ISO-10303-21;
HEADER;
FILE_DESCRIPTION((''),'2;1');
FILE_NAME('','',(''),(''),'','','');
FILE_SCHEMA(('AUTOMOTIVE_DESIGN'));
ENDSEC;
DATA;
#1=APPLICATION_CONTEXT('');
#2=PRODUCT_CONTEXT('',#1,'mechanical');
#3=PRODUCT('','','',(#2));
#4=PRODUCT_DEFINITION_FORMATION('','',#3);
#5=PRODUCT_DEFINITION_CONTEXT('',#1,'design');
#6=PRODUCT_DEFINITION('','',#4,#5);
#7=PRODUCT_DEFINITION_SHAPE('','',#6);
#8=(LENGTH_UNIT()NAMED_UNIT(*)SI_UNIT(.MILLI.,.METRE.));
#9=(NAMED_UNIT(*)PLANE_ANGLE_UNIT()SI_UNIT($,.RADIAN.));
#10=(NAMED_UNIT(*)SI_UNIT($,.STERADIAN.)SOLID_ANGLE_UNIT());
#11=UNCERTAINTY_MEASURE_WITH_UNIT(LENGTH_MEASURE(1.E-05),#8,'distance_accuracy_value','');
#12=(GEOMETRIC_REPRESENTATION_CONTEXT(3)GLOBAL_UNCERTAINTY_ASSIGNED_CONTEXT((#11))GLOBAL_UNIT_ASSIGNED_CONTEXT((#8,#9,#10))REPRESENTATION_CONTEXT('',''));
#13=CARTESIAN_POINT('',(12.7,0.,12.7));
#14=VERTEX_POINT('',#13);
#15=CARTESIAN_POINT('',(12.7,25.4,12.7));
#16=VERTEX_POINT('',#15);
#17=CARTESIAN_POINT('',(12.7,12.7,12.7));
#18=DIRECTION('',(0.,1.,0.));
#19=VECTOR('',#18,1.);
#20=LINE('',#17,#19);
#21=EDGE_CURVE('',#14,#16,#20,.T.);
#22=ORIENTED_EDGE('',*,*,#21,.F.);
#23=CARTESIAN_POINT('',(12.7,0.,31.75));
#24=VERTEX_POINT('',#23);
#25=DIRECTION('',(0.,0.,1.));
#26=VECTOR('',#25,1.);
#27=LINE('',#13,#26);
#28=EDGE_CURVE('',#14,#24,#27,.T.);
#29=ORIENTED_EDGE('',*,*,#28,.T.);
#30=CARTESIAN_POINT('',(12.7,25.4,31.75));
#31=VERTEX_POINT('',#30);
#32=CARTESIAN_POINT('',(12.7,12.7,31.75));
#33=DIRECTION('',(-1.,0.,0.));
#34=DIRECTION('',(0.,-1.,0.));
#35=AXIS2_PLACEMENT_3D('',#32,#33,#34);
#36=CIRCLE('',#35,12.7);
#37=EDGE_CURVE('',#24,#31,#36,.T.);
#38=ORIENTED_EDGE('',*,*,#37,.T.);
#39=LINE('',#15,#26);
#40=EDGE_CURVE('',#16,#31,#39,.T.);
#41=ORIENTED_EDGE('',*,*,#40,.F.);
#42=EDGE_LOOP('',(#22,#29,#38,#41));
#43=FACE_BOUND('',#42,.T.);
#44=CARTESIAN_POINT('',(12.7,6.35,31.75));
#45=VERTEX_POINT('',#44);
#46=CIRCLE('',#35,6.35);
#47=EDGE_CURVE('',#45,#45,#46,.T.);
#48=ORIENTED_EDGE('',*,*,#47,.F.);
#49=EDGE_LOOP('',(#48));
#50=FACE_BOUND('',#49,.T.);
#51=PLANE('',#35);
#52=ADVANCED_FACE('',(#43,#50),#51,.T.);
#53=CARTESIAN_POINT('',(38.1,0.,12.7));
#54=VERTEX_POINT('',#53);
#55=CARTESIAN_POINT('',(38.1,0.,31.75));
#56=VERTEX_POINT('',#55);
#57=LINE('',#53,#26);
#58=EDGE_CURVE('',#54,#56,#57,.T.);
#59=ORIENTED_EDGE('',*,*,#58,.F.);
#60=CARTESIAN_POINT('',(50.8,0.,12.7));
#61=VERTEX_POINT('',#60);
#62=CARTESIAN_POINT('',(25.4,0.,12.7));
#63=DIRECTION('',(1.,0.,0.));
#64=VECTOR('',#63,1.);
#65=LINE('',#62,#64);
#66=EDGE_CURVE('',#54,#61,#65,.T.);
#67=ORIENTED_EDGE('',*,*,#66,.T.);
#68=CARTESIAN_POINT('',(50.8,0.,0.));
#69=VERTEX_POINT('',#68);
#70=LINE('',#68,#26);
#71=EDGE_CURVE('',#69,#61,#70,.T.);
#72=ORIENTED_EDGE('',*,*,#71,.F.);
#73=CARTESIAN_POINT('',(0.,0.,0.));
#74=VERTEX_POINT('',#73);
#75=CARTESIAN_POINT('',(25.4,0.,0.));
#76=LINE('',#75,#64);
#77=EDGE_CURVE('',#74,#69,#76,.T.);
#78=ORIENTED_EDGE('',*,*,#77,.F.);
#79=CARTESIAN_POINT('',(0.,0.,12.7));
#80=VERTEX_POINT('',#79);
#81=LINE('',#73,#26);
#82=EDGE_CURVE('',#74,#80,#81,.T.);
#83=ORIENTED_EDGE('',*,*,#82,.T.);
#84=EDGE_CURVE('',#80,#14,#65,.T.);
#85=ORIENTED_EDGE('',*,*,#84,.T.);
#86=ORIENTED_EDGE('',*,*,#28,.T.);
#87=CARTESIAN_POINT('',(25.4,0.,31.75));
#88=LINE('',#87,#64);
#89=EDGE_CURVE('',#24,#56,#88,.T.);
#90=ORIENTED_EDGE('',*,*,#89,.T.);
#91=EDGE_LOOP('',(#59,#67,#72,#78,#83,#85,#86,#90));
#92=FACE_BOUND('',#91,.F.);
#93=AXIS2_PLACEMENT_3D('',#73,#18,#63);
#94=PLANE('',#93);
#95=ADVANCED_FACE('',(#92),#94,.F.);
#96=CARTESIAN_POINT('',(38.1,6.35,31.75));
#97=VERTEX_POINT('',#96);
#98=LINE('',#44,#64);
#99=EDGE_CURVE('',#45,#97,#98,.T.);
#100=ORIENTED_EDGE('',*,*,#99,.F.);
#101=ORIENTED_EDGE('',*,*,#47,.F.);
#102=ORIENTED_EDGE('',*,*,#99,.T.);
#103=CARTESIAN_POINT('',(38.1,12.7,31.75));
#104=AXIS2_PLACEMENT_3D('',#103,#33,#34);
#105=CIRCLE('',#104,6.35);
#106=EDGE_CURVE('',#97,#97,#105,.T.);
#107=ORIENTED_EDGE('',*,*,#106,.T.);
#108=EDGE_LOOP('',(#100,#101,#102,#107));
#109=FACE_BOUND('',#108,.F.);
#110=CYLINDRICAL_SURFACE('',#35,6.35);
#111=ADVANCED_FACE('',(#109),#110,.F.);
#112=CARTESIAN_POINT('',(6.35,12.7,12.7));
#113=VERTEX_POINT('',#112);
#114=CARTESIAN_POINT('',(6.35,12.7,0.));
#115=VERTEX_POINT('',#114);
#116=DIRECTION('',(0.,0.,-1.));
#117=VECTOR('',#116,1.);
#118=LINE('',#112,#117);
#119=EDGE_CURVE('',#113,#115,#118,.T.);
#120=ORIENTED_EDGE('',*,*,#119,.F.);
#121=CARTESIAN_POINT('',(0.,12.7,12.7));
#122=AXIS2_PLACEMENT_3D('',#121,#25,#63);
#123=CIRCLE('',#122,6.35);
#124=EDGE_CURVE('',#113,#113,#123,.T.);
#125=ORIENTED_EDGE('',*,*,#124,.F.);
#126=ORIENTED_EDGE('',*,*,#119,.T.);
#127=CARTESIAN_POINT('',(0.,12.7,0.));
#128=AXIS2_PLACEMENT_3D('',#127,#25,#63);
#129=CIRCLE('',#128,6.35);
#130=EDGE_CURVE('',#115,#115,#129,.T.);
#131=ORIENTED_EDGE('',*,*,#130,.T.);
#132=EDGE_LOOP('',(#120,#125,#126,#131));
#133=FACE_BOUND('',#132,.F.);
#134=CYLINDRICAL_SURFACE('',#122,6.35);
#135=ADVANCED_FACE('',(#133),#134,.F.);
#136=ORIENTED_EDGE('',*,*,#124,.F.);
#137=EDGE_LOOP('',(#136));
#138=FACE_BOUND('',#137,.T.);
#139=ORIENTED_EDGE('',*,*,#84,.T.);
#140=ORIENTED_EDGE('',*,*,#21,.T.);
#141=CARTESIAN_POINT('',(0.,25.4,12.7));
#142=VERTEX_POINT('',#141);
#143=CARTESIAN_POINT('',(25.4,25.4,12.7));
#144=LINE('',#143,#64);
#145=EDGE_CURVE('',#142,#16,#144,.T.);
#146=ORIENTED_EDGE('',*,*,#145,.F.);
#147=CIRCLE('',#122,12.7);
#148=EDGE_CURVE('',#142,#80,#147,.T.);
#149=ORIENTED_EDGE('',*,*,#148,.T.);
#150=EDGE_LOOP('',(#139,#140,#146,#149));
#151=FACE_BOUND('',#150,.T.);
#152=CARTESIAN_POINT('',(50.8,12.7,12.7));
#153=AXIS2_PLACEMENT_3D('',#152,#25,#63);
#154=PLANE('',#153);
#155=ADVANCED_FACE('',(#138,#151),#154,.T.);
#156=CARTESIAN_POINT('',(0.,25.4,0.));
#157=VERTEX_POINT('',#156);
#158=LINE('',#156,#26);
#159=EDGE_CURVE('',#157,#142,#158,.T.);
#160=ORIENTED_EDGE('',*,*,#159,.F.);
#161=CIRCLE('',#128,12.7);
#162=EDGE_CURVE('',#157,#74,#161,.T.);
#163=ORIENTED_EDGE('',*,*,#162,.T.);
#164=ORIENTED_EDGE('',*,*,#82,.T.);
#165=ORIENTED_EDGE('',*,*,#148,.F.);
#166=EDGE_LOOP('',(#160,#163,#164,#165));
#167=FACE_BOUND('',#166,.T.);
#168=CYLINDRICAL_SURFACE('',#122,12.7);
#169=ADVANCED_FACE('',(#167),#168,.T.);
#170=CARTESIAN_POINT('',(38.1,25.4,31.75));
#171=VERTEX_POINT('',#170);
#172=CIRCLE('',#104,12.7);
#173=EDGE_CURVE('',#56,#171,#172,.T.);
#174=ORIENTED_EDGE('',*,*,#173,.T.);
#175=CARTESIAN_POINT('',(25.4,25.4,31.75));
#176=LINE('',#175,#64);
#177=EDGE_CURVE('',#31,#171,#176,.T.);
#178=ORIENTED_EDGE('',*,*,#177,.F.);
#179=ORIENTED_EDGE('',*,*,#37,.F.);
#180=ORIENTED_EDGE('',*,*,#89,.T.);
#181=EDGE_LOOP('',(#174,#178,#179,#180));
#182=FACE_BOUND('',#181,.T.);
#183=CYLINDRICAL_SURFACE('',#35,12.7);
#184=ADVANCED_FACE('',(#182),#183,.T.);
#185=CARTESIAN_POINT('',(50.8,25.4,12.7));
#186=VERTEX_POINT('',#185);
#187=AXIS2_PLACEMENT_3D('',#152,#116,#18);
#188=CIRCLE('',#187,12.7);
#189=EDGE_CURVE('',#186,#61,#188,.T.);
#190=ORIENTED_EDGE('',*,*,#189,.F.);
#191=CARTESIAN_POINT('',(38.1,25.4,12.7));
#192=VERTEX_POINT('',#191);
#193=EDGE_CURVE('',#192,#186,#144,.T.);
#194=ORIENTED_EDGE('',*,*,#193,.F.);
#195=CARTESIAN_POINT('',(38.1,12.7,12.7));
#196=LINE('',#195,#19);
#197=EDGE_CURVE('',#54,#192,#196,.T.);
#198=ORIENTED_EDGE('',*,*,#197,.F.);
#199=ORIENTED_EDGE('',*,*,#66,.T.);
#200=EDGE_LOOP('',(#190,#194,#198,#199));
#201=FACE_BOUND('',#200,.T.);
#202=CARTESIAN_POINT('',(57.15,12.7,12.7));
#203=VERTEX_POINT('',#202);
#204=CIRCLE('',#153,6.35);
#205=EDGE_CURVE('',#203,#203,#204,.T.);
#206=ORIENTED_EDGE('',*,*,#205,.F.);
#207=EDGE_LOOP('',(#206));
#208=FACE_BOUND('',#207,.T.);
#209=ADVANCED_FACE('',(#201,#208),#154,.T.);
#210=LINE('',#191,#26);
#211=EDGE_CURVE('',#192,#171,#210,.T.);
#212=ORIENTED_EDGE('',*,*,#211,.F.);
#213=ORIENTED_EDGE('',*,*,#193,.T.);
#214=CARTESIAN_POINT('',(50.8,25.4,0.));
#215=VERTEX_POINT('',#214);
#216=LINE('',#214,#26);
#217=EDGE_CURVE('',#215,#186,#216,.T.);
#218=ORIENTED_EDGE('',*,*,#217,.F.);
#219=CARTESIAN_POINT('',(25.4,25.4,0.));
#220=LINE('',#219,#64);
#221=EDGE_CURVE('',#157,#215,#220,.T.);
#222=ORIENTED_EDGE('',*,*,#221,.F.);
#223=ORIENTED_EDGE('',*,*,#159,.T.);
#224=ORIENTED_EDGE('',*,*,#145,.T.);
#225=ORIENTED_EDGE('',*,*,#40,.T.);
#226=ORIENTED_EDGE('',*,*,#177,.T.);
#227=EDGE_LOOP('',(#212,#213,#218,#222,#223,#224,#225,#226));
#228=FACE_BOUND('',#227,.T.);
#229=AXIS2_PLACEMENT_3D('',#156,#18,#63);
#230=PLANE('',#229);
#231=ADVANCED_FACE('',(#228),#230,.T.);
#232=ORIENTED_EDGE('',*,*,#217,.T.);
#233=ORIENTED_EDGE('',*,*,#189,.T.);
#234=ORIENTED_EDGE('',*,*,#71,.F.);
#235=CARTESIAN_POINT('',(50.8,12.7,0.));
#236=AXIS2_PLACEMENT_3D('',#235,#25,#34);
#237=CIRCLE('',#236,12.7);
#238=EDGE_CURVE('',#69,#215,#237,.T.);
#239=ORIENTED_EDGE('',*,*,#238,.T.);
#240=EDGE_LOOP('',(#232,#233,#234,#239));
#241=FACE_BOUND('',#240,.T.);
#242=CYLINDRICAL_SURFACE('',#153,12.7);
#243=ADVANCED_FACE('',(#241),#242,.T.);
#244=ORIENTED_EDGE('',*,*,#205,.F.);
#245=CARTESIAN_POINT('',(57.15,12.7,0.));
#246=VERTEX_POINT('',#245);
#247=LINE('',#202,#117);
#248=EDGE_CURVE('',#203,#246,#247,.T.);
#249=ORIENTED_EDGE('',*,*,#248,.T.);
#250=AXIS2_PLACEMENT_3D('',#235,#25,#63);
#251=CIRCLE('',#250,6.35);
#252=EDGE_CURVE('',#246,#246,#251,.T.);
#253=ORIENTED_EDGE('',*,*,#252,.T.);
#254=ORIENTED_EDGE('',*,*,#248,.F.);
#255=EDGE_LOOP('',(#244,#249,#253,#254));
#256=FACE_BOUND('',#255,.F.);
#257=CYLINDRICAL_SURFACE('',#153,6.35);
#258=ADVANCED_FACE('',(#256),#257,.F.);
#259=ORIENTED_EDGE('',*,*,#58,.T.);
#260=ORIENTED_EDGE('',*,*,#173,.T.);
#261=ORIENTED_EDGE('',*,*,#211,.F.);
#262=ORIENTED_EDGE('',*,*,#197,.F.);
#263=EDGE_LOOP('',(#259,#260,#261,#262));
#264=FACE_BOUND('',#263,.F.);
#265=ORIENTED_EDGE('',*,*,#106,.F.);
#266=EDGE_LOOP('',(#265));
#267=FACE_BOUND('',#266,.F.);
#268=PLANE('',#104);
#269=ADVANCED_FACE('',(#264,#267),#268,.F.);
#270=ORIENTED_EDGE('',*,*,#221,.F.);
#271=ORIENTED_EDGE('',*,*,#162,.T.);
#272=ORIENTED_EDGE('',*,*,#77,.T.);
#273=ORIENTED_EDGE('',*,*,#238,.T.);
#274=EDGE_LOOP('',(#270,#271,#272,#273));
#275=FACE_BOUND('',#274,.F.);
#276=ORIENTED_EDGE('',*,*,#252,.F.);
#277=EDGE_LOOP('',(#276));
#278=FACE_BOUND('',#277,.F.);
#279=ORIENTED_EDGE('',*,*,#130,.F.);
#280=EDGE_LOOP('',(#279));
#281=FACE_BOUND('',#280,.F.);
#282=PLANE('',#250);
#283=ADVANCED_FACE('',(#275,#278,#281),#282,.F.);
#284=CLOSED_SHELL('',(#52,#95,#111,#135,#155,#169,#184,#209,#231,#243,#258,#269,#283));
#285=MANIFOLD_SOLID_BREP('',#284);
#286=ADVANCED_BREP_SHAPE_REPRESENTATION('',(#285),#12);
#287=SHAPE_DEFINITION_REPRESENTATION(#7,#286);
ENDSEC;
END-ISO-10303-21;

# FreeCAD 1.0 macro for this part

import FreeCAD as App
import Part
import Sketcher
Q = App.Units.Quantity


def add_polygon(sketch, points):
    """Adds a closed chain of lines whose ends are joined by coincident constraints."""
    first, n = sketch.GeometryCount, len(points)
    for a, b in zip(points, points[1:] + points[:1]):
        sketch.addGeometry(Part.LineSegment(App.Vector(*a, 0), App.Vector(*b, 0)), False)
    for i in range(n):
        sketch.addConstraint(Sketcher.Constraint("Coincident", first + i, 2, first + (i + 1) % n, 1))

doc = App.newDocument("Part")
params = doc.addObject("Spreadsheet::Sheet", "Params")
for row, (alias, value) in enumerate([
    ("sketch1_width", "2 in"),
    ("sketch1_height", "1 in"),
    ("pad1_length", "0.5 in"),
    ("sketch2_diameter", "1 in"),
    ("pad2_length", "0.5 in"),
    ("sketch3_diameter", "1 in"),
    ("pad3_length", "0.5 in"),
    ("sketch4_width", "1 in"),
    ("pad4_length", "0.75 in"),
    ("sketch5_diameter", "1 in"),
    ("pad5_length", "1 in"),
    ("sketch6_diameter", "0.5 in"),
    ("pocket1_length", "1 in"),
    ("sketch7_diameter", "0.5 in"),
    ("pocket2_length", "0.5 in"),
], start=1):
    params.set(f"A{row}", alias)
    params.set(f"B{row}", "=" + value)
    params.setAlias(f"B{row}", alias)

body = doc.addObject("PartDesign::Body", "Body")

# Sketch on XY plane
sketch1 = body.newObject("Sketcher::SketchObject", "Sketch")
sketch1.AttachmentSupport = (doc.getObject("XY_Plane"), [""])
sketch1.MapMode = "FlatFace"
add_polygon(sketch1, [(0, 25), (0, 0), (51, 0), (51, 25)])  # lines 0-3
sketch1.addConstraint(Sketcher.Constraint("Vertical", 0))
sketch1.addConstraint(Sketcher.Constraint("Horizontal", 1))
sketch1.addConstraint(Sketcher.Constraint("Vertical", 2))
sketch1.addConstraint(Sketcher.Constraint("Horizontal", 3))
sketch1.addConstraint(Sketcher.Constraint("Coincident", 0, 2, -1, 1))
sketch1.addConstraint(Sketcher.Constraint("DistanceX", 1, 1, 1, 2, Q("2 in")))
sketch1.addConstraint(Sketcher.Constraint("DistanceY", 0, 2, 0, 1, Q("1 in")))
sketch1.setExpression("Constraints[9]", "Params.sketch1_width")
sketch1.setExpression("Constraints[10]", "Params.sketch1_height")
pad1 = body.newObject("PartDesign::Pad", "Pad")
pad1.Profile = sketch1
pad1.setExpression("Length", "Params.pad1_length")

# Sketch on XY plane
sketch2 = body.newObject("Sketcher::SketchObject", "Sketch001")
sketch2.AttachmentSupport = (doc.getObject("XY_Plane"), [""])
sketch2.MapMode = "FlatFace"
sketch2.AttachmentOffset = App.Placement(App.Vector(0, 0, 0.5 * 25.4), App.Rotation())
sketch2.addGeometry(Part.Circle(App.Vector(0, 13, 0), App.Vector(0, 0, 1), 13), False)
sketch2.addConstraint(Sketcher.Constraint("PointOnObject", 0, 3, -2))
sketch2.addConstraint(Sketcher.Constraint("Diameter", 0, Q("1 in")))
sketch2.addConstraint(Sketcher.Constraint("DistanceY", -1, 1, 0, 3, Q("0.5 in")))
sketch2.setExpression("Constraints[1]", "Params.sketch2_diameter")
pad2 = body.newObject("PartDesign::Pad", "Pad001")
pad2.Profile = sketch2
pad2.setExpression("Length", "Params.pad2_length")
pad2.Reversed = True

# Sketch on XY plane
sketch3 = body.newObject("Sketcher::SketchObject", "Sketch002")
sketch3.AttachmentSupport = (doc.getObject("XY_Plane"), [""])
sketch3.MapMode = "FlatFace"
sketch3.AttachmentOffset = App.Placement(App.Vector(0, 0, 0.5 * 25.4), App.Rotation())
sketch3.addGeometry(Part.Circle(App.Vector(51, 13, 0), App.Vector(0, 0, 1), 13), False)
sketch3.addConstraint(Sketcher.Constraint("Diameter", 0, Q("1 in")))
sketch3.addConstraint(Sketcher.Constraint("DistanceX", -1, 1, 0, 3, Q("2 in")))
sketch3.addConstraint(Sketcher.Constraint("DistanceY", -1, 1, 0, 3, Q("0.5 in")))
sketch3.setExpression("Constraints[0]", "Params.sketch3_diameter")
pad3 = body.newObject("PartDesign::Pad", "Pad002")
pad3.Profile = sketch3
pad3.setExpression("Length", "Params.pad3_length")
pad3.Reversed = True

# Sketch on XY plane
sketch4 = body.newObject("Sketcher::SketchObject", "Sketch003")
sketch4.AttachmentSupport = (doc.getObject("XY_Plane"), [""])
sketch4.MapMode = "FlatFace"
sketch4.AttachmentOffset = App.Placement(App.Vector(0, 0, 0.5 * 25.4), App.Rotation())
add_polygon(sketch4, [(13, 25), (13, 0), (38, 0), (38, 25)])  # lines 0-3
sketch4.addConstraint(Sketcher.Constraint("Vertical", 0))
sketch4.addConstraint(Sketcher.Constraint("Horizontal", 1))
sketch4.addConstraint(Sketcher.Constraint("Vertical", 2))
sketch4.addConstraint(Sketcher.Constraint("Horizontal", 3))
sketch4.addConstraint(Sketcher.Constraint("PointOnObject", 0, 2, -1))
sketch4.addConstraint(Sketcher.Constraint("Equal", 3, 0))
sketch4.addConstraint(Sketcher.Constraint("DistanceX", 1, 1, 1, 2, Q("1 in")))
sketch4.addConstraint(Sketcher.Constraint("DistanceX", -1, 1, 0, 2, Q("0.5 in")))
sketch4.setExpression("Constraints[10]", "Params.sketch4_width")
pad4 = body.newObject("PartDesign::Pad", "Pad003")
pad4.Profile = sketch4
pad4.setExpression("Length", "Params.pad4_length")

# Sketch on YZ plane
sketch5 = body.newObject("Sketcher::SketchObject", "Sketch004")
sketch5.AttachmentSupport = (doc.getObject("YZ_Plane"), [""])
sketch5.MapMode = "FlatFace"
sketch5.AttachmentOffset = App.Placement(App.Vector(0, 0, 0.5 * 25.4), App.Rotation())
sketch5.addGeometry(Part.Circle(App.Vector(13, 32, 0), App.Vector(0, 0, 1), 13), False)
sketch5.addConstraint(Sketcher.Constraint("Diameter", 0, Q("1 in")))
sketch5.addConstraint(Sketcher.Constraint("DistanceX", -1, 1, 0, 3, Q("0.5 in")))
sketch5.addConstraint(Sketcher.Constraint("DistanceY", -1, 1, 0, 3, Q("1.25 in")))
sketch5.setExpression("Constraints[0]", "Params.sketch5_diameter")
pad5 = body.newObject("PartDesign::Pad", "Pad004")
pad5.Profile = sketch5
pad5.setExpression("Length", "Params.pad5_length")

# Sketch on YZ plane
sketch6 = body.newObject("Sketcher::SketchObject", "Sketch005")
sketch6.AttachmentSupport = (doc.getObject("YZ_Plane"), [""])
sketch6.MapMode = "FlatFace"
sketch6.AttachmentOffset = App.Placement(App.Vector(0, 0, 0.5 * 25.4), App.Rotation())
sketch6.addGeometry(Part.Circle(App.Vector(13, 32, 0), App.Vector(0, 0, 1), 6), False)
sketch6.addConstraint(Sketcher.Constraint("Diameter", 0, Q("0.5 in")))
sketch6.addConstraint(Sketcher.Constraint("DistanceX", -1, 1, 0, 3, Q("0.5 in")))
sketch6.addConstraint(Sketcher.Constraint("DistanceY", -1, 1, 0, 3, Q("1.25 in")))
sketch6.setExpression("Constraints[0]", "Params.sketch6_diameter")
pocket1 = body.newObject("PartDesign::Pocket", "Pocket")
pocket1.Profile = sketch6
pocket1.setExpression("Length", "Params.pocket1_length")
pocket1.Reversed = True

# Sketch on XY plane
sketch7 = body.newObject("Sketcher::SketchObject", "Sketch006")
sketch7.AttachmentSupport = (doc.getObject("XY_Plane"), [""])
sketch7.MapMode = "FlatFace"
sketch7.AttachmentOffset = App.Placement(App.Vector(0, 0, 0.5 * 25.4), App.Rotation())
sketch7.addGeometry(Part.Circle(App.Vector(51, 13, 0), App.Vector(0, 0, 1), 6), False)
sketch7.addGeometry(Part.Circle(App.Vector(0, 13, 0), App.Vector(0, 0, 1), 6), False)
sketch7.addConstraint(Sketcher.Constraint("Equal", 0, 1))
sketch7.addConstraint(Sketcher.Constraint("PointOnObject", 1, 3, -2))
sketch7.addConstraint(Sketcher.Constraint("Horizontal", 0, 3, 1, 3))
sketch7.addConstraint(Sketcher.Constraint("Diameter", 0, Q("0.5 in")))
sketch7.addConstraint(Sketcher.Constraint("DistanceX", -1, 1, 0, 3, Q("2 in")))
sketch7.addConstraint(Sketcher.Constraint("DistanceY", -1, 1, 0, 3, Q("0.5 in")))
sketch7.setExpression("Constraints[3]", "Params.sketch7_diameter")
pocket2 = body.newObject("PartDesign::Pocket", "Pocket001")
pocket2.Profile = sketch7
pocket2.setExpression("Length", "Params.pocket2_length")

doc.recompute()
